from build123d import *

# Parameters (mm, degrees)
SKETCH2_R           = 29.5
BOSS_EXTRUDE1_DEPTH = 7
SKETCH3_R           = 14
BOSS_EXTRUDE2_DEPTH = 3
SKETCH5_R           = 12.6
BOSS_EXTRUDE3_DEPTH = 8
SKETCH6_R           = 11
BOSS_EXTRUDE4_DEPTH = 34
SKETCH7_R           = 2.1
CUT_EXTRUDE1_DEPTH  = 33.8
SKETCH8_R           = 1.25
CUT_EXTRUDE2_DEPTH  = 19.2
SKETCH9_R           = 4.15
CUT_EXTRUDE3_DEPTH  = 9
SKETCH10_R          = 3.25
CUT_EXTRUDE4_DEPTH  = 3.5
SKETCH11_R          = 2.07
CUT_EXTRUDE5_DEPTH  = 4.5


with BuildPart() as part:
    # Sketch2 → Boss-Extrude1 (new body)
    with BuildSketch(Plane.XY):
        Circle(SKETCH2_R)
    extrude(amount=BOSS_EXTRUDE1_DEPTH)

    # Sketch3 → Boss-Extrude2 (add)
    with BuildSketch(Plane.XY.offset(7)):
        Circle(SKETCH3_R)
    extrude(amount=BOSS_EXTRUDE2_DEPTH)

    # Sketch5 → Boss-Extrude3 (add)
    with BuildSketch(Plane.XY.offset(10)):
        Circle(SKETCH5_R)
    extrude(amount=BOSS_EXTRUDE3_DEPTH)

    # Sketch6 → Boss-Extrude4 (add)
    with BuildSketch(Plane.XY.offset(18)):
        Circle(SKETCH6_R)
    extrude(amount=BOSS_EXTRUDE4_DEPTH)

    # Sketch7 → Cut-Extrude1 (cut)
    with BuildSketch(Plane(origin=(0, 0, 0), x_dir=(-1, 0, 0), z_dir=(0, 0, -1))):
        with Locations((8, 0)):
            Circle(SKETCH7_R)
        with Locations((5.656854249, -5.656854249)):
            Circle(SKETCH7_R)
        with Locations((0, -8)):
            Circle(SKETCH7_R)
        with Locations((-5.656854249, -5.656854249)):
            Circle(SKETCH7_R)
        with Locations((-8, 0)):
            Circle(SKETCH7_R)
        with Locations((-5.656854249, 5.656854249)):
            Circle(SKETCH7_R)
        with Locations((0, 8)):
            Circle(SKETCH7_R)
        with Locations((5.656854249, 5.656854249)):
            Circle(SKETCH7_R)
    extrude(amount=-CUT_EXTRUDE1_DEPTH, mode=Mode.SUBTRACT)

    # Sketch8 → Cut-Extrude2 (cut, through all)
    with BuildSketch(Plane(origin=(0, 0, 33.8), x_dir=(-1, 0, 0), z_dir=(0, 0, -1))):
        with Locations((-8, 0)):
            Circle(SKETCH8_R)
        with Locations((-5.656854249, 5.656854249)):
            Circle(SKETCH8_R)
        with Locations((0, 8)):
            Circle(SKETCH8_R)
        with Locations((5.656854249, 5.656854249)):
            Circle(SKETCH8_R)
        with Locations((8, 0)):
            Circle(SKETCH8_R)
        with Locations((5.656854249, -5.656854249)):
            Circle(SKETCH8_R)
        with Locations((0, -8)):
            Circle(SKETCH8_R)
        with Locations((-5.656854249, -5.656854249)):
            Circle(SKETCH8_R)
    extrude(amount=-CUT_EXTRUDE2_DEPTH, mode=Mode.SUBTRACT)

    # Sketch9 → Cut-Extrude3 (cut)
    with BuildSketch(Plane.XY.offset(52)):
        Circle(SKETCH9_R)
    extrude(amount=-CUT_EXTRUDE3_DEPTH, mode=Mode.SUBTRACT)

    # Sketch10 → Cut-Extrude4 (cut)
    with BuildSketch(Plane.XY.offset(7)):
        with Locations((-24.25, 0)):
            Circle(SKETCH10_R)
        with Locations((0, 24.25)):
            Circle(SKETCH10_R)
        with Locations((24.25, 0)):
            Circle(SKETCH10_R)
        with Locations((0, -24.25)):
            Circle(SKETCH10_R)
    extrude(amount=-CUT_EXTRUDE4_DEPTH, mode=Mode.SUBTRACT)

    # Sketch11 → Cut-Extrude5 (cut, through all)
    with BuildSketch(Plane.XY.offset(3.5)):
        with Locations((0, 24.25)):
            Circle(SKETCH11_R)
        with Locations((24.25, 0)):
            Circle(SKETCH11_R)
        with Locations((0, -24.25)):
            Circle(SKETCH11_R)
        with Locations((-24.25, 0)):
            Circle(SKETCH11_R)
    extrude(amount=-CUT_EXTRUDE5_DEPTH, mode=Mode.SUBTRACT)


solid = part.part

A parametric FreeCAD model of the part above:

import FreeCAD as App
import Part
import Sketcher
from FreeCAD import Vector
Q = App.Units.Quantity

doc = App.newDocument("Part")
body = doc.addObject("PartDesign::Body", "Body")

sketch1 = doc.addObject("Sketcher::SketchObject", "Sketch")
body.addObject(sketch1)
sketch1.AttachmentSupport = (doc.XY_Plane, [""])
sketch1.MapMode = "FlatFace"
sketch1.addGeometry(Part.Circle(Vector(0, 0, 0), Vector(0, 0, 1), 30), False)
sketch1.addConstraint(Sketcher.Constraint("Coincident", 0, 3, -1, 1))
sketch1.addConstraint(Sketcher.Constraint("Diameter", 0, Q("59 mm")))
pad1 = doc.addObject("PartDesign::Pad", "Pad")
body.addObject(pad1)
pad1.Profile = sketch1
pad1.Length = 7

sketch2 = doc.addObject("Sketcher::SketchObject", "Sketch001")
body.addObject(sketch2)
sketch2.AttachmentSupport = (doc.XY_Plane, [""])
sketch2.MapMode = "FlatFace"
sketch2.AttachmentOffset = App.Placement(Vector(0, 0, 7), App.Rotation())
sketch2.addGeometry(Part.Circle(Vector(0, 0, 0), Vector(0, 0, 1), 14), False)
sketch2.addConstraint(Sketcher.Constraint("Coincident", 0, 3, -1, 1))
sketch2.addConstraint(Sketcher.Constraint("Diameter", 0, Q("28 mm")))
pad2 = doc.addObject("PartDesign::Pad", "Pad001")
body.addObject(pad2)
pad2.Profile = sketch2
pad2.Length = 3

sketch3 = doc.addObject("Sketcher::SketchObject", "Sketch002")
body.addObject(sketch3)
sketch3.AttachmentSupport = (doc.XY_Plane, [""])
sketch3.MapMode = "FlatFace"
sketch3.AttachmentOffset = App.Placement(Vector(0, 0, 10), App.Rotation())
sketch3.addGeometry(Part.Circle(Vector(0, 0, 0), Vector(0, 0, 1), 13), False)
sketch3.addConstraint(Sketcher.Constraint("Coincident", 0, 3, -1, 1))
sketch3.addConstraint(Sketcher.Constraint("Diameter", 0, Q("25.2 mm")))
pad3 = doc.addObject("PartDesign::Pad", "Pad002")
body.addObject(pad3)
pad3.Profile = sketch3
pad3.Length = 8

sketch4 = doc.addObject("Sketcher::SketchObject", "Sketch003")
body.addObject(sketch4)
sketch4.AttachmentSupport = (doc.XY_Plane, [""])
sketch4.MapMode = "FlatFace"
sketch4.AttachmentOffset = App.Placement(Vector(0, 0, 18), App.Rotation())
sketch4.addGeometry(Part.Circle(Vector(0, 0, 0), Vector(0, 0, 1), 11), False)
sketch4.addConstraint(Sketcher.Constraint("Coincident", 0, 3, -1, 1))
sketch4.addConstraint(Sketcher.Constraint("Diameter", 0, Q("22 mm")))
pad4 = doc.addObject("PartDesign::Pad", "Pad003")
body.addObject(pad4)
pad4.Profile = sketch4
pad4.Length = 34

sketch5 = doc.addObject("Sketcher::SketchObject", "Sketch004")
body.addObject(sketch5)
sketch5.AttachmentSupport = (doc.XY_Plane, [""])
sketch5.MapMode = "FlatFace"
sketch5.addGeometry(Part.Circle(Vector(-8, 0, 0), Vector(0, 0, 1), 2.1), False)
sketch5.addGeometry(Part.Circle(Vector(-5.7, -5.7, 0), Vector(0, 0, 1), 2.1), False)
sketch5.addGeometry(Part.Circle(Vector(0, -8, 0), Vector(0, 0, 1), 2.1), False)
sketch5.addGeometry(Part.Circle(Vector(5.7, -5.7, 0), Vector(0, 0, 1), 2.1), False)
sketch5.addGeometry(Part.Circle(Vector(8, 0, 0), Vector(0, 0, 1), 2.1), False)
sketch5.addGeometry(Part.Circle(Vector(5.7, 5.7, 0), Vector(0, 0, 1), 2.1), False)
sketch5.addGeometry(Part.Circle(Vector(0, 8, 0), Vector(0, 0, 1), 2.1), False)
sketch5.addGeometry(Part.Circle(Vector(-5.7, 5.7, 0), Vector(0, 0, 1), 2.1), False)
sketch5.addConstraint(Sketcher.Constraint("Equal", 0, 1))
sketch5.addConstraint(Sketcher.Constraint("Equal", 1, 2))
sketch5.addConstraint(Sketcher.Constraint("Equal", 2, 3))
sketch5.addConstraint(Sketcher.Constraint("Equal", 3, 4))
sketch5.addConstraint(Sketcher.Constraint("Equal", 4, 5))
sketch5.addConstraint(Sketcher.Constraint("Equal", 5, 6))
sketch5.addConstraint(Sketcher.Constraint("Equal", 6, 7))
sketch5.addConstraint(Sketcher.Constraint("Symmetric", 0, 3, 4, 3, -1, 1))
sketch5.addConstraint(Sketcher.Constraint("Symmetric", 1, 3, 5, 3, -1, 1))
sketch5.addConstraint(Sketcher.Constraint("Symmetric", 2, 3, 6, 3, -1, 1))
sketch5.addConstraint(Sketcher.Constraint("Symmetric", 3, 3, 7, 3, -1, 1))
sketch5.addConstraint(Sketcher.Constraint("Symmetric", 1, 3, 3, 3, -2))
sketch5.addConstraint(Sketcher.Constraint("PointOnObject", 0, 3, -1))
sketch5.addConstraint(Sketcher.Constraint("PointOnObject", 2, 3, -2))
sketch5.addConstraint(Sketcher.Constraint("Diameter", 0, Q("4.2 mm")))
sketch5.addConstraint(Sketcher.Constraint("DistanceX", 0, 3, -1, 1, Q("8 mm")))
sketch5.addConstraint(Sketcher.Constraint("DistanceY", 2, 3, -1, 1, Q("8 mm")))
sketch5.addConstraint(Sketcher.Constraint("DistanceX", 1, 3, 3, 3, Q("11.313708 mm")))
sketch5.addConstraint(Sketcher.Constraint("DistanceY", 3, 3, 5, 3, Q("11.313708 mm")))
pocket1 = doc.addObject("PartDesign::Pocket", "Pocket")
body.addObject(pocket1)
pocket1.Profile = sketch5
pocket1.Length = 33.8
pocket1.Reversed = True

sketch6 = doc.addObject("Sketcher::SketchObject", "Sketch005")
body.addObject(sketch6)
sketch6.AttachmentSupport = (doc.XY_Plane, [""])
sketch6.MapMode = "FlatFace"
sketch6.AttachmentOffset = App.Placement(Vector(0, 0, 33.8), App.Rotation())
sketch6.addGeometry(Part.Circle(Vector(8, 0, 0), Vector(0, 0, 1), 1.2), False)
sketch6.addGeometry(Part.Circle(Vector(5.7, 5.7, 0), Vector(0, 0, 1), 1.2), False)
sketch6.addGeometry(Part.Circle(Vector(0, 8, 0), Vector(0, 0, 1), 1.2), False)
sketch6.addGeometry(Part.Circle(Vector(-5.7, 5.7, 0), Vector(0, 0, 1), 1.2), False)
sketch6.addGeometry(Part.Circle(Vector(-8, 0, 0), Vector(0, 0, 1), 1.2), False)
sketch6.addGeometry(Part.Circle(Vector(-5.7, -5.7, 0), Vector(0, 0, 1), 1.2), False)
sketch6.addGeometry(Part.Circle(Vector(0, -8, 0), Vector(0, 0, 1), 1.2), False)
sketch6.addGeometry(Part.Circle(Vector(5.7, -5.7, 0), Vector(0, 0, 1), 1.2), False)
sketch6.addConstraint(Sketcher.Constraint("Equal", 0, 1))
sketch6.addConstraint(Sketcher.Constraint("Equal", 1, 2))
sketch6.addConstraint(Sketcher.Constraint("Equal", 2, 3))
sketch6.addConstraint(Sketcher.Constraint("Equal", 3, 4))
sketch6.addConstraint(Sketcher.Constraint("Equal", 4, 5))
sketch6.addConstraint(Sketcher.Constraint("Equal", 5, 6))
sketch6.addConstraint(Sketcher.Constraint("Equal", 6, 7))
sketch6.addConstraint(Sketcher.Constraint("Symmetric", 0, 3, 4, 3, -1, 1))
sketch6.addConstraint(Sketcher.Constraint("Symmetric", 1, 3, 5, 3, -1, 1))
sketch6.addConstraint(Sketcher.Constraint("Symmetric", 2, 3, 6, 3, -1, 1))
sketch6.addConstraint(Sketcher.Constraint("Symmetric", 3, 3, 7, 3, -1, 1))
sketch6.addConstraint(Sketcher.Constraint("Symmetric", 1, 3, 3, 3, -2))
sketch6.addConstraint(Sketcher.Constraint("PointOnObject", 0, 3, -1))
sketch6.addConstraint(Sketcher.Constraint("PointOnObject", 2, 3, -2))
sketch6.addConstraint(Sketcher.Constraint("Diameter", 0, Q("2.5 mm")))
sketch6.addConstraint(Sketcher.Constraint("DistanceX", -1, 1, 0, 3, Q("8 mm")))
sketch6.addConstraint(Sketcher.Constraint("DistanceY", -1, 1, 2, 3, Q("8 mm")))
sketch6.addConstraint(Sketcher.Constraint("DistanceX", 3, 3, 1, 3, Q("11.313708 mm")))
sketch6.addConstraint(Sketcher.Constraint("DistanceY", 5, 3, 3, 3, Q("11.313708 mm")))
pocket2 = doc.addObject("PartDesign::Pocket", "Pocket001")
body.addObject(pocket2)
pocket2.Profile = sketch6
pocket2.Type = "ThroughAll"
pocket2.Reversed = True

sketch7 = doc.addObject("Sketcher::SketchObject", "Sketch006")
body.addObject(sketch7)
sketch7.AttachmentSupport = (doc.XY_Plane, [""])
sketch7.MapMode = "FlatFace"
sketch7.AttachmentOffset = App.Placement(Vector(0, 0, 52), App.Rotation())
sketch7.addGeometry(Part.Circle(Vector(0, 0, 0), Vector(0, 0, 1), 4.2), False)
sketch7.addConstraint(Sketcher.Constraint("Coincident", 0, 3, -1, 1))
sketch7.addConstraint(Sketcher.Constraint("Diameter", 0, Q("8.3 mm")))
pocket3 = doc.addObject("PartDesign::Pocket", "Pocket002")
body.addObject(pocket3)
pocket3.Profile = sketch7
pocket3.Length = 9

sketch8 = doc.addObject("Sketcher::SketchObject", "Sketch007")
body.addObject(sketch8)
sketch8.AttachmentSupport = (doc.XY_Plane, [""])
sketch8.MapMode = "FlatFace"
sketch8.AttachmentOffset = App.Placement(Vector(0, 0, 7), App.Rotation())
sketch8.addGeometry(Part.Circle(Vector(-24.2, 0, 0), Vector(0, 0, 1), 3.2), False)
sketch8.addGeometry(Part.Circle(Vector(0, 24.2, 0), Vector(0, 0, 1), 3.2), False)
sketch8.addGeometry(Part.Circle(Vector(24.2, 0, 0), Vector(0, 0, 1), 3.2), False)
sketch8.addGeometry(Part.Circle(Vector(0, -24.2, 0), Vector(0, 0, 1), 3.2), False)
sketch8.addConstraint(Sketcher.Constraint("Equal", 0, 1))
sketch8.addConstraint(Sketcher.Constraint("Equal", 1, 2))
sketch8.addConstraint(Sketcher.Constraint("Equal", 2, 3))
sketch8.addConstraint(Sketcher.Constraint("Symmetric", 0, 3, 2, 3, -1, 1))
sketch8.addConstraint(Sketcher.Constraint("Symmetric", 1, 3, 3, 3, -1, 1))
sketch8.addConstraint(Sketcher.Constraint("PointOnObject", 0, 3, -1))
sketch8.addConstraint(Sketcher.Constraint("PointOnObject", 1, 3, -2))
sketch8.addConstraint(Sketcher.Constraint("Diameter", 0, Q("6.5 mm")))
sketch8.addConstraint(Sketcher.Constraint("DistanceX", 0, 3, 2, 3, Q("48.5 mm")))
sketch8.addConstraint(Sketcher.Constraint("DistanceY", 3, 3, 1, 3, Q("48.5 mm")))
pocket4 = doc.addObject("PartDesign::Pocket", "Pocket003")
body.addObject(pocket4)
pocket4.Profile = sketch8
pocket4.Length = 3.5

sketch9 = doc.addObject("Sketcher::SketchObject", "Sketch008")
body.addObject(sketch9)
sketch9.AttachmentSupport = (doc.XY_Plane, [""])
sketch9.MapMode = "FlatFace"
sketch9.AttachmentOffset = App.Placement(Vector(0, 0, 3.5), App.Rotation())
sketch9.addGeometry(Part.Circle(Vector(0, 24.2, 0), Vector(0, 0, 1), 2.1), False)
sketch9.addGeometry(Part.Circle(Vector(24.2, 0, 0), Vector(0, 0, 1), 2.1), False)
sketch9.addGeometry(Part.Circle(Vector(0, -24.2, 0), Vector(0, 0, 1), 2.1), False)
sketch9.addGeometry(Part.Circle(Vector(-24.2, 0, 0), Vector(0, 0, 1), 2.1), False)
sketch9.addConstraint(Sketcher.Constraint("Equal", 0, 1))
sketch9.addConstraint(Sketcher.Constraint("Equal", 1, 2))
sketch9.addConstraint(Sketcher.Constraint("Equal", 2, 3))
sketch9.addConstraint(Sketcher.Constraint("Symmetric", 0, 3, 2, 3, -1, 1))
sketch9.addConstraint(Sketcher.Constraint("Symmetric", 1, 3, 3, 3, -1, 1))
sketch9.addConstraint(Sketcher.Constraint("PointOnObject", 0, 3, -2))
sketch9.addConstraint(Sketcher.Constraint("PointOnObject", 1, 3, -1))
sketch9.addConstraint(Sketcher.Constraint("Diameter", 0, Q("4.14 mm")))
sketch9.addConstraint(Sketcher.Constraint("DistanceY", 2, 3, 0, 3, Q("48.5 mm")))
sketch9.addConstraint(Sketcher.Constraint("DistanceX", 3, 3, 1, 3, Q("48.5 mm")))
pocket5 = doc.addObject("PartDesign::Pocket", "Pocket004")
body.addObject(pocket5)
pocket5.Profile = sketch9
pocket5.Type = "ThroughAll"

doc.recompute()
